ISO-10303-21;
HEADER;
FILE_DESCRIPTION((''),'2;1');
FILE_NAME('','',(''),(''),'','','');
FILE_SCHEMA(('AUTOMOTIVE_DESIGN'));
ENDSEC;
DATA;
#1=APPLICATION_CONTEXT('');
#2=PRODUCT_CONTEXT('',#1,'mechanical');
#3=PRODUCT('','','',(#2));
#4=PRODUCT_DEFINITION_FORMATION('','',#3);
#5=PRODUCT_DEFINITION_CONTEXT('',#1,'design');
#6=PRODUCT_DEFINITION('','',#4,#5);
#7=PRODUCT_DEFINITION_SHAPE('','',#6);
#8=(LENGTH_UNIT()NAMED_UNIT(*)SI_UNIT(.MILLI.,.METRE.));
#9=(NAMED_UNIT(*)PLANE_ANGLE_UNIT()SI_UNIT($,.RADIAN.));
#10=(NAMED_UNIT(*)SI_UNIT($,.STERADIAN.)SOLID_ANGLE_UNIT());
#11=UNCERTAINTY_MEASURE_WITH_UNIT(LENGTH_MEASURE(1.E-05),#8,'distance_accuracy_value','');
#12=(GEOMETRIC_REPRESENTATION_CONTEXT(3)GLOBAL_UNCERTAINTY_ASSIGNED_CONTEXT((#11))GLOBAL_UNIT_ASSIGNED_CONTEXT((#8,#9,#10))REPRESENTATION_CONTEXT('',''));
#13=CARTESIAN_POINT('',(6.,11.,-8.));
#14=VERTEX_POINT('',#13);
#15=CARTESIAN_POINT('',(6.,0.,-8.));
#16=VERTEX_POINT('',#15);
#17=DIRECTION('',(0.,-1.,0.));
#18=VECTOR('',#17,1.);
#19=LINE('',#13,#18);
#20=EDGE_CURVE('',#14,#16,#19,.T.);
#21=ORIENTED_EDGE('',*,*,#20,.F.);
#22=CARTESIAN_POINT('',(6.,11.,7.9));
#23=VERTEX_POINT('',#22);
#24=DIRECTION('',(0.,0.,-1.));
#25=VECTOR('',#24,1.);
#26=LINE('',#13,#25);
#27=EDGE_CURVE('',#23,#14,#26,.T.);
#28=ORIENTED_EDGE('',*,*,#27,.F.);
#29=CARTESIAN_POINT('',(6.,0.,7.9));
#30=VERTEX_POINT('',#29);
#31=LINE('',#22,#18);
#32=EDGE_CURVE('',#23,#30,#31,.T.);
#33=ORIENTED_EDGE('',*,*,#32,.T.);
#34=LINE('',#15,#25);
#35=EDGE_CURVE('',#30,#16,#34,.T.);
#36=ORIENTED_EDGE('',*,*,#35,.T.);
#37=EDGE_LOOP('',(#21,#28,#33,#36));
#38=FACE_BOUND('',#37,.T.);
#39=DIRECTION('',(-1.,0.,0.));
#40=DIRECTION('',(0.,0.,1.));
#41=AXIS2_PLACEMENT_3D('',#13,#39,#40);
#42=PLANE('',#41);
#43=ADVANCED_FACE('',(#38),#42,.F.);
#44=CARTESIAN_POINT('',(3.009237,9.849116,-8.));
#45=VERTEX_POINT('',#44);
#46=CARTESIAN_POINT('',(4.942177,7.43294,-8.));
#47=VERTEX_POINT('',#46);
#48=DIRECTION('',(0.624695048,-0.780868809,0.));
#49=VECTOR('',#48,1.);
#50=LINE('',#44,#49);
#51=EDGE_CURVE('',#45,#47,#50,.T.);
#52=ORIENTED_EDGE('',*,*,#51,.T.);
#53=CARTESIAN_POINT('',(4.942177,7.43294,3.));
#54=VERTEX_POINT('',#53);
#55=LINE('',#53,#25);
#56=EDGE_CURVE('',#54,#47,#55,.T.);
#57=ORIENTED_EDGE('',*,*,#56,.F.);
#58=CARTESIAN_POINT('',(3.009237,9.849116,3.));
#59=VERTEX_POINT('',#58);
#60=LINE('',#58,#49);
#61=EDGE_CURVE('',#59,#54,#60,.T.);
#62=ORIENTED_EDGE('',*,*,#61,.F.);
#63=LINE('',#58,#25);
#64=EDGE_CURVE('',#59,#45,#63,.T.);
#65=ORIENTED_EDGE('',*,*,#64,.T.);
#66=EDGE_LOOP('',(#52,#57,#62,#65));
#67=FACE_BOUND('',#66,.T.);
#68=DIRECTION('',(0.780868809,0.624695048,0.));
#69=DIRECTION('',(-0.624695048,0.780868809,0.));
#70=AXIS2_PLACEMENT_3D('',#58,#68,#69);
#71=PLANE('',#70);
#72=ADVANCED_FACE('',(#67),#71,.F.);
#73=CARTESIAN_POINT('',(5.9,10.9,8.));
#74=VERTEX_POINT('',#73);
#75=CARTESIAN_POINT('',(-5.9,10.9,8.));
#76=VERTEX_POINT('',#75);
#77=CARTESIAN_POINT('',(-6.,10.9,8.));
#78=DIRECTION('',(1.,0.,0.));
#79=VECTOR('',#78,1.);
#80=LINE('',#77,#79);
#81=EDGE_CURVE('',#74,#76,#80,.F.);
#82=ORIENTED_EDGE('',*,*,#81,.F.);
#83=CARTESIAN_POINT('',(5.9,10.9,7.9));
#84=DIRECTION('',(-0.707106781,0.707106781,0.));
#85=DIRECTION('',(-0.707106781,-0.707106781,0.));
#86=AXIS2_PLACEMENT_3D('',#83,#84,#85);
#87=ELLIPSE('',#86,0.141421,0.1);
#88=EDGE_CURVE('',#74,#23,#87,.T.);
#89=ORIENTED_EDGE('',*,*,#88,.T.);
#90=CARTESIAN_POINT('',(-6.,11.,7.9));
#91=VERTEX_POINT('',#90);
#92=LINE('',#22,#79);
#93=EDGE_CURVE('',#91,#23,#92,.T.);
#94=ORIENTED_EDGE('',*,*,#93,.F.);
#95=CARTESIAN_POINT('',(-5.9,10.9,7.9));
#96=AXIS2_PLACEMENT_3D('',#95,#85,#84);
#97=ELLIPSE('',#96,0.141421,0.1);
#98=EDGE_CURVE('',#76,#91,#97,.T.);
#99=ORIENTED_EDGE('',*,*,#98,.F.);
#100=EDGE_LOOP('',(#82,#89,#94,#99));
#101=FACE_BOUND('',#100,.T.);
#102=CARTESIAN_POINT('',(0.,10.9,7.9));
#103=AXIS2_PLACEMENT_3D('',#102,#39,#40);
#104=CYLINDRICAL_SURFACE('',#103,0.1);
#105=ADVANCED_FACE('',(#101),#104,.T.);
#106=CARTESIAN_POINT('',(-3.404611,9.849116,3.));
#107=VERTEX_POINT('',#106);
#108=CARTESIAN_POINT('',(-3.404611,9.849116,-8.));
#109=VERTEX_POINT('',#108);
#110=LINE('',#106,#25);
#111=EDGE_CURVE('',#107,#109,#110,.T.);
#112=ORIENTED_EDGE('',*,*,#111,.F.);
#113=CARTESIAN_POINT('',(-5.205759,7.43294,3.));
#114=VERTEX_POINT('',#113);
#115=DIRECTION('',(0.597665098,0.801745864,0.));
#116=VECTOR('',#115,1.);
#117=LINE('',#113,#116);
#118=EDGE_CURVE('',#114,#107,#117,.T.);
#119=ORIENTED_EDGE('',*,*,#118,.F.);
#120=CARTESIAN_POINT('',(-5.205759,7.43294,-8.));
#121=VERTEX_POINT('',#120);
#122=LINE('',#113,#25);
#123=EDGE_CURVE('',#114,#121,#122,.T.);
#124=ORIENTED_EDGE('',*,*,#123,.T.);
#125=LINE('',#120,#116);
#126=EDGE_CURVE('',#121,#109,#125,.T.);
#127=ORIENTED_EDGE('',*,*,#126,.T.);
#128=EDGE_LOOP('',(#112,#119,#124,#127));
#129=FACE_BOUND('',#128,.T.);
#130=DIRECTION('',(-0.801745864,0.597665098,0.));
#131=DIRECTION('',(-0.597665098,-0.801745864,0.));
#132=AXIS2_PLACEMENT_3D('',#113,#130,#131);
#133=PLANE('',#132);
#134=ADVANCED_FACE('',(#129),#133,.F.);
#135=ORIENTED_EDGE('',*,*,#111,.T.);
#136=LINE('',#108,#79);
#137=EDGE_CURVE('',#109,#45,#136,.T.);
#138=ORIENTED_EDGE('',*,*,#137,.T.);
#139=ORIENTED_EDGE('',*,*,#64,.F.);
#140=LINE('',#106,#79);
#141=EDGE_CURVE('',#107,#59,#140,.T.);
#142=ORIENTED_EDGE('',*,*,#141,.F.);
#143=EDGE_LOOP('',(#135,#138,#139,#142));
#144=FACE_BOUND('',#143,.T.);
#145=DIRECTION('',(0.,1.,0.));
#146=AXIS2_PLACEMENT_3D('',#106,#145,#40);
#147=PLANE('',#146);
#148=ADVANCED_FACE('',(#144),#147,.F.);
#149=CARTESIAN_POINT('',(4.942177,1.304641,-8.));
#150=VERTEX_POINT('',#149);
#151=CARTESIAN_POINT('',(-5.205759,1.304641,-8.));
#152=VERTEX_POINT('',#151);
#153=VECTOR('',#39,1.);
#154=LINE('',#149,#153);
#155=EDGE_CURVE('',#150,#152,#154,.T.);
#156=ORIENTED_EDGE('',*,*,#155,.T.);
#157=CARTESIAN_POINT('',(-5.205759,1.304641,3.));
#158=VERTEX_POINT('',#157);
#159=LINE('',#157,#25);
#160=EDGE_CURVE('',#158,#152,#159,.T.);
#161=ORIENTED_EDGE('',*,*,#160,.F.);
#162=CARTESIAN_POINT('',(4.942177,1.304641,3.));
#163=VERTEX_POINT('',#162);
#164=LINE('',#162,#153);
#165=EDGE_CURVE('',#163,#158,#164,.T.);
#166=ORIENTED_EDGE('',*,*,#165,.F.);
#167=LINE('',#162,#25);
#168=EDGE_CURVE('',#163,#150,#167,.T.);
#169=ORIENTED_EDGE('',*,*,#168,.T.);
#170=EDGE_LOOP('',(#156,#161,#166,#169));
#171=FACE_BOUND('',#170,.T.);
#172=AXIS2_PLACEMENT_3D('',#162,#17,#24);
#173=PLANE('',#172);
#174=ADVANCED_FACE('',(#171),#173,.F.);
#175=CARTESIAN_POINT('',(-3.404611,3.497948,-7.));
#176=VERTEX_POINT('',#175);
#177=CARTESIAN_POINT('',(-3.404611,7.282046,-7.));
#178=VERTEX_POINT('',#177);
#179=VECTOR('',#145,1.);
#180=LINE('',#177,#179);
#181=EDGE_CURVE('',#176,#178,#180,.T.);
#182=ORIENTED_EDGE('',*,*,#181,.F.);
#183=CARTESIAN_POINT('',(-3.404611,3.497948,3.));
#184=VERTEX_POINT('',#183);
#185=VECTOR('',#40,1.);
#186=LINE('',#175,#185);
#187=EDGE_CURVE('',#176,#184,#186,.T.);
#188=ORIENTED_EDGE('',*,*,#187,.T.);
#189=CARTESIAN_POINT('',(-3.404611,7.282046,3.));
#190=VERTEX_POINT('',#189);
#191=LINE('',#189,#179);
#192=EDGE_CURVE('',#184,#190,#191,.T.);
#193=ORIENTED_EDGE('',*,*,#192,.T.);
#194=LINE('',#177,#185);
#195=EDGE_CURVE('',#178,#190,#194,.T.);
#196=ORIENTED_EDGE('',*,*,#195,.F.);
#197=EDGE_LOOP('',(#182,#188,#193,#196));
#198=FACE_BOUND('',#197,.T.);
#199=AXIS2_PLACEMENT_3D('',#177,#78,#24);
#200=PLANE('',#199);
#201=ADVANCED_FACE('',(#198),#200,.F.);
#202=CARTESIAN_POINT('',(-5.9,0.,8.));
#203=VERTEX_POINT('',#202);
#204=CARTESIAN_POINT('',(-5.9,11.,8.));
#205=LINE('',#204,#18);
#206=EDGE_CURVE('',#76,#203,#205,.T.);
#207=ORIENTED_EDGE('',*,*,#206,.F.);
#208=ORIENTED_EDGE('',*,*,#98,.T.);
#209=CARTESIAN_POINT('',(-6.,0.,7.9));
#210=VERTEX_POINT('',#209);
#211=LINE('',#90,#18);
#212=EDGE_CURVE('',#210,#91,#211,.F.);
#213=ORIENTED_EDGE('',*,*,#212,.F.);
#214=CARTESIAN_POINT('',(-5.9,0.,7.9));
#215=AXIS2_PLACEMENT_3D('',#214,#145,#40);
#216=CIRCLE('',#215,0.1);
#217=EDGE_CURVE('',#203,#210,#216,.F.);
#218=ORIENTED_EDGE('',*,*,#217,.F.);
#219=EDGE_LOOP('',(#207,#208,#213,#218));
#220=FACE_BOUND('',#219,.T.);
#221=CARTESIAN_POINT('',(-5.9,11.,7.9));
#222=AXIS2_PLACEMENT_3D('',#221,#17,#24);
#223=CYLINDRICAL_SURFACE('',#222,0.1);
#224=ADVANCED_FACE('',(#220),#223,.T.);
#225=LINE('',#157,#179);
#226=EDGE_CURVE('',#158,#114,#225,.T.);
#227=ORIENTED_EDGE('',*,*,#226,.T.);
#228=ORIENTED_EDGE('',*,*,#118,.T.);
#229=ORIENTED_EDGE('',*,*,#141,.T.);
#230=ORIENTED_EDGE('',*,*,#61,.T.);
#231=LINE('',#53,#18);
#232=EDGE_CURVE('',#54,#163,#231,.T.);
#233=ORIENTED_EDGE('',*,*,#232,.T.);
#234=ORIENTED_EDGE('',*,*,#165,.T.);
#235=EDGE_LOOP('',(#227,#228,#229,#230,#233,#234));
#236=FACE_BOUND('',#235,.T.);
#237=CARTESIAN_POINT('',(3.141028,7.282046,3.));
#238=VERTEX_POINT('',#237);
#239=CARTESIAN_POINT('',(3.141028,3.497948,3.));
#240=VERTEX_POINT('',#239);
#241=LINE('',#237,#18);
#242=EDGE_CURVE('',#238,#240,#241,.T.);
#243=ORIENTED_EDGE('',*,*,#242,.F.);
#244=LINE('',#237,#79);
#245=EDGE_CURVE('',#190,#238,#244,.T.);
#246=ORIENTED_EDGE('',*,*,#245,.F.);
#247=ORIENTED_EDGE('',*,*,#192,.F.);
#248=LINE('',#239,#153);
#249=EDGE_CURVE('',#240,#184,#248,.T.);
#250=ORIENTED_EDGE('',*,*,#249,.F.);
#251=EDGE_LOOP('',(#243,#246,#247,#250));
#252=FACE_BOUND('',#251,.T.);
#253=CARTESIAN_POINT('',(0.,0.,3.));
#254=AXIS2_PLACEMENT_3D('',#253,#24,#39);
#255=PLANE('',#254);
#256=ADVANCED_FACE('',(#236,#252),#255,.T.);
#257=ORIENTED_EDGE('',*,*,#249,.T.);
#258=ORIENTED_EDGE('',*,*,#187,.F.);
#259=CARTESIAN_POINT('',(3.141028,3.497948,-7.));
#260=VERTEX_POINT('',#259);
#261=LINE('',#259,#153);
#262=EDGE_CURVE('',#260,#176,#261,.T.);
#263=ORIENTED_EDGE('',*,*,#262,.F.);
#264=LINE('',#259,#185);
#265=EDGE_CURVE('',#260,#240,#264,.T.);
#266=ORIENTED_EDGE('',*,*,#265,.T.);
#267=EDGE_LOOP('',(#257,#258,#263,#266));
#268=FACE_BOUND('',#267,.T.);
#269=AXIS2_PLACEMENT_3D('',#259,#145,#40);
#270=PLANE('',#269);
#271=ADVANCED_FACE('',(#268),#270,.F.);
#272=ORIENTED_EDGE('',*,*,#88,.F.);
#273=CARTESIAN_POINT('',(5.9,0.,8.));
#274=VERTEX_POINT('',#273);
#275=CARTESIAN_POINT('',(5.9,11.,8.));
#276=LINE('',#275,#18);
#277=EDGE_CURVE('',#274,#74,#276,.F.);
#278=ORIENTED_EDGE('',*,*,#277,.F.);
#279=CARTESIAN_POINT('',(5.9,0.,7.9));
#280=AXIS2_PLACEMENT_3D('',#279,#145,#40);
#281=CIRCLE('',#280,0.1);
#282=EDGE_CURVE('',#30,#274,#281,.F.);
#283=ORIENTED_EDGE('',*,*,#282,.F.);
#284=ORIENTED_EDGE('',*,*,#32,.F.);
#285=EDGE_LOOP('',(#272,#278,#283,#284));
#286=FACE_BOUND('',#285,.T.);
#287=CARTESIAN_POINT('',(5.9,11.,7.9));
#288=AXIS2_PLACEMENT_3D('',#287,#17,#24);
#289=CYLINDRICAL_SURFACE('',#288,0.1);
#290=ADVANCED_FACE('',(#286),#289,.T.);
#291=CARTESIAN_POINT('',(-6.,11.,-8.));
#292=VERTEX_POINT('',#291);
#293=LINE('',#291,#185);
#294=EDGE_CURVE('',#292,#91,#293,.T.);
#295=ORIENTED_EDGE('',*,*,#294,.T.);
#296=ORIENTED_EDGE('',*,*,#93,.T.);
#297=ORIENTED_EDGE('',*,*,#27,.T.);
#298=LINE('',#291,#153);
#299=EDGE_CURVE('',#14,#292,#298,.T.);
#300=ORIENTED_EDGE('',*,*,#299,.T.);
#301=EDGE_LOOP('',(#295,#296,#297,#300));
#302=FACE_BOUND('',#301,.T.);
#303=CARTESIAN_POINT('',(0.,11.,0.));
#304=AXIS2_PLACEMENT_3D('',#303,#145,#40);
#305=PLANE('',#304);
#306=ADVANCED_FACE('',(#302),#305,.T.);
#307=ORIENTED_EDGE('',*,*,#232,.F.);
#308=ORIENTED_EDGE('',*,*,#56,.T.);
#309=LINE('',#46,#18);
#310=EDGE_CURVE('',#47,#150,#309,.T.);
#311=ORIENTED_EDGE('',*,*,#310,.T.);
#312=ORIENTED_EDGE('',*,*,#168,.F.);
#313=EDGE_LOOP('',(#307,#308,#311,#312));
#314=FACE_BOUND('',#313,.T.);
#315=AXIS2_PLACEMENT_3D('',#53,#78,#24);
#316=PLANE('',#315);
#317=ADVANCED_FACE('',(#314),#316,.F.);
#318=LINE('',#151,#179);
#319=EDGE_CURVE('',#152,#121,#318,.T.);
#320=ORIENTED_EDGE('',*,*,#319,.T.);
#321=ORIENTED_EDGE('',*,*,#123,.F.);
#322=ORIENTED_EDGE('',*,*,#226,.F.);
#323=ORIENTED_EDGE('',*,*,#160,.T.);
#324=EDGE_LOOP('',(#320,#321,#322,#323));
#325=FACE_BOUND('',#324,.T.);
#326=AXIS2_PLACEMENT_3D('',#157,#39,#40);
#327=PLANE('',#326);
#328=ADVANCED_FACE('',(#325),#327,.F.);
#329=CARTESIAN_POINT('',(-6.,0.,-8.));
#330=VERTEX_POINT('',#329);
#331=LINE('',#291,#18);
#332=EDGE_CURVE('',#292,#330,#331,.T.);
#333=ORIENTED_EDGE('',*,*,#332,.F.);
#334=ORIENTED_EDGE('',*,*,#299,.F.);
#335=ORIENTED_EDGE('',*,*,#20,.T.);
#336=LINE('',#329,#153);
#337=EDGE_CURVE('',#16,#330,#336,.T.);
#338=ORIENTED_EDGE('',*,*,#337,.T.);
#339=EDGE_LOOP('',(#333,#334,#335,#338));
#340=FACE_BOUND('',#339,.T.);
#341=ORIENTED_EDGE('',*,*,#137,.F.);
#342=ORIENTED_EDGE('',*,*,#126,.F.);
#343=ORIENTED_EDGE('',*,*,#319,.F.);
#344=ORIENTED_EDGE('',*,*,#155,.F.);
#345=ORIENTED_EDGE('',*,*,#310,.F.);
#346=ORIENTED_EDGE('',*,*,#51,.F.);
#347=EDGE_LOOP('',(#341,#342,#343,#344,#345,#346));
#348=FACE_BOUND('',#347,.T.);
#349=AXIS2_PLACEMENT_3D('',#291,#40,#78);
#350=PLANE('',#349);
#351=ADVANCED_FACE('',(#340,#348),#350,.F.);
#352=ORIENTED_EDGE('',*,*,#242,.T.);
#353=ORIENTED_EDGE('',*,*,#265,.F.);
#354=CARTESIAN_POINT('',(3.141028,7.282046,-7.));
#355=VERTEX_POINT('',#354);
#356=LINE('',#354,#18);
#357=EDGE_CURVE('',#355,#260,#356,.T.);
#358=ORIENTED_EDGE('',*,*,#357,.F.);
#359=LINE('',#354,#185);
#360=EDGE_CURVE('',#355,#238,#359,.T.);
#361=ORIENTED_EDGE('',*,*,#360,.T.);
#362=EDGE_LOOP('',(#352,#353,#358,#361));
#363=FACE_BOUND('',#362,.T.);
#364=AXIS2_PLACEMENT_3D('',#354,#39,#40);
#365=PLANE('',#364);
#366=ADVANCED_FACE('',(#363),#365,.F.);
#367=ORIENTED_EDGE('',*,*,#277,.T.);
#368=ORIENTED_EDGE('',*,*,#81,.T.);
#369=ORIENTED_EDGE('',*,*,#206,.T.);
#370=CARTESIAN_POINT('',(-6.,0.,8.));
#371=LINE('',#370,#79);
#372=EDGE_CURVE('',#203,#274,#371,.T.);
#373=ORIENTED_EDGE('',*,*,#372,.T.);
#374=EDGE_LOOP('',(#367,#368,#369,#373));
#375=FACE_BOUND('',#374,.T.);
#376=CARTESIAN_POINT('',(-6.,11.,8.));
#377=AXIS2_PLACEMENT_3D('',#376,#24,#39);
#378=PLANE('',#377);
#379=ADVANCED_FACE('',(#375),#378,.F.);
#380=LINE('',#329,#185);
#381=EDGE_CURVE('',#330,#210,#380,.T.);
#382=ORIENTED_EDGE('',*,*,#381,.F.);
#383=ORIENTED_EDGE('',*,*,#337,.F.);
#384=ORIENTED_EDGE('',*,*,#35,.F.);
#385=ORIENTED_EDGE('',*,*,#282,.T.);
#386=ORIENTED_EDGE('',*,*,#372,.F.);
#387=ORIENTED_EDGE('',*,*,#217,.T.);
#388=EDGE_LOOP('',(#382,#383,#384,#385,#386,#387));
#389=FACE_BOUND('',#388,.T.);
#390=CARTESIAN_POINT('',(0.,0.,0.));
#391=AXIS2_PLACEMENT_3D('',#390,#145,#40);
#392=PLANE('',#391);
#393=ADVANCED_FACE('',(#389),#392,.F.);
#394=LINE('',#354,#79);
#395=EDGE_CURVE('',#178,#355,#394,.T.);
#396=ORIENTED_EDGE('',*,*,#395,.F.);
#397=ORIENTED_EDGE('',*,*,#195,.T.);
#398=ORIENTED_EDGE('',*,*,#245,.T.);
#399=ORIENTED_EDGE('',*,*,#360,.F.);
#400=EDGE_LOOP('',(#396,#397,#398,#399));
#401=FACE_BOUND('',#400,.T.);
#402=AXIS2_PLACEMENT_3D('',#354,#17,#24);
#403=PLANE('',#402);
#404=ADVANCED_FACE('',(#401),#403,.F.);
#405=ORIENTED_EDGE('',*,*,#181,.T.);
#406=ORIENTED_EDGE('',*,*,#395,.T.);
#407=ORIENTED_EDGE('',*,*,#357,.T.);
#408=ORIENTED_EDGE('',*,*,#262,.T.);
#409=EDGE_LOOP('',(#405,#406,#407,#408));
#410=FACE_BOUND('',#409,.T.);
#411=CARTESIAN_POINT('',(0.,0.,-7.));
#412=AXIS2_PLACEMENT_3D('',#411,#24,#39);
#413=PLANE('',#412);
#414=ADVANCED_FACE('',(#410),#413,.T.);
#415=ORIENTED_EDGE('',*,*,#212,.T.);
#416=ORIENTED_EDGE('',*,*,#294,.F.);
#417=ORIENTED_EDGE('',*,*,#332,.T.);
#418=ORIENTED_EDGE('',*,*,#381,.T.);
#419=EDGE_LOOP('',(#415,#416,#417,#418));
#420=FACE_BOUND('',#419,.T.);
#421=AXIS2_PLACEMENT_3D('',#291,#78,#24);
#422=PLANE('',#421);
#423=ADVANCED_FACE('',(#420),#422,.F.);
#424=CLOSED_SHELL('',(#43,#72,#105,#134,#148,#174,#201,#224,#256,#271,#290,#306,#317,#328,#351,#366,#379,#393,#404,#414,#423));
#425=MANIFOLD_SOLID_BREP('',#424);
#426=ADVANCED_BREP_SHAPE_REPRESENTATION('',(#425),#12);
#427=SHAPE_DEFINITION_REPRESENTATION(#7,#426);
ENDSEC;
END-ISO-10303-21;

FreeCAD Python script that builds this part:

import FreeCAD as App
import Part
import Sketcher


def edges_at(feature, points):
    """Names of the edges that pass closest to the given points."""
    edges = feature.Shape.Edges
    near = lambda p: min(range(len(edges)), key=lambda i: edges[i].distToShape(Part.Vertex(*p))[0])
    return sorted({f"Edge{near(p) + 1}" for p in points})


def add_polygon(sketch, points):
    """Adds a closed chain of lines whose ends are joined by coincident constraints."""
    first, n = sketch.GeometryCount, len(points)
    for a, b in zip(points, points[1:] + points[:1]):
        sketch.addGeometry(Part.LineSegment(App.Vector(*a, 0), App.Vector(*b, 0)), False)
    for i in range(n):
        sketch.addConstraint(Sketcher.Constraint("Coincident", first + i, 2, first + (i + 1) % n, 1))

doc = App.newDocument("Part")
params = doc.addObject("Spreadsheet::Sheet", "Params")
for row, (alias, value) in enumerate([
    ("sketch1_width", "12 mm"),
    ("sketch1_height", "16 mm"),
    ("pad1_length", "11 mm"),
    ("pocket1_length", "11 mm"),
    ("fillet_radius", "0.1 mm"),
    ("pad2_length", "10 mm"),
], start=1):
    params.set(f"A{row}", alias)
    params.set(f"B{row}", "=" + value)
    params.setAlias(f"B{row}", alias)

body = doc.addObject("PartDesign::Body", "Body")

sketch1 = body.newObject("Sketcher::SketchObject", "Sketch")
sketch1.AttachmentSupport = (doc.getObject("XZ_Plane"), [""])
sketch1.MapMode = "FlatFace"
add_polygon(sketch1, [(-6, -8), (-6, 8), (6, 8), (6, -8)])
sketch1.addConstraint(Sketcher.Constraint("Vertical", 0))
sketch1.addConstraint(Sketcher.Constraint("Horizontal", 1))
sketch1.addConstraint(Sketcher.Constraint("Vertical", 2))
sketch1.addConstraint(Sketcher.Constraint("Horizontal", 3))
sketch1.addConstraint(Sketcher.Constraint("Symmetric", 0, 2, 2, 2, -1, 1))
sketch1.addConstraint(Sketcher.Constraint("DistanceX", 1, 1, 1, 2, 12.0))
sketch1.addConstraint(Sketcher.Constraint("DistanceY", 0, 1, 0, 2, 16.0))
sketch1.setExpression("Constraints[9]", "Params.sketch1_width")
sketch1.setExpression("Constraints[10]", "Params.sketch1_height")
pad1 = body.newObject("PartDesign::Pad", "Pad")
pad1.Profile = sketch1
pad1.setExpression("Length", "Params.pad1_length")
pad1.Reversed = True

sketch2 = body.newObject("Sketcher::SketchObject", "Sketch001")
sketch2.AttachmentSupport = (doc.getObject("XY_Plane"), [""])
sketch2.MapMode = "FlatFace"
sketch2.AttachmentOffset = App.Placement(App.Vector(0, 0, -8), App.Rotation())
add_polygon(sketch2, [(4.942177, 1.304641), (-5.205759, 1.304641), (-5.205759, 7.43294), (-3.404611, 9.849116), (3.009237, 9.849116), (4.942177, 7.43294)])
sketch2.addConstraint(Sketcher.Constraint("Horizontal", 0))
sketch2.addConstraint(Sketcher.Constraint("Vertical", 1))
sketch2.addConstraint(Sketcher.Constraint("Horizontal", 3))
sketch2.addConstraint(Sketcher.Constraint("Vertical", 5))
sketch2.addConstraint(Sketcher.Constraint("Horizontal", 1, 2, 4, 2))
sketch2.addConstraint(Sketcher.Constraint("DistanceY", 1, 1, 1, 2, 6.128299))
sketch2.addConstraint(Sketcher.Constraint("DistanceX", 0, 2, 0, 1, 10.147936))
sketch2.addConstraint(Sketcher.Constraint("DistanceX", 3, 1, 3, 2, 6.413847))
sketch2.addConstraint(Sketcher.Constraint("DistanceX", 0, 2, -1, 1, 5.205759))
sketch2.addConstraint(Sketcher.Constraint("DistanceY", -1, 1, 0, 2, 1.304641))
sketch2.addConstraint(Sketcher.Constraint("DistanceX", 2, 2, -1, 1, 3.404611))
sketch2.addConstraint(Sketcher.Constraint("Distance", 2, 3.013642))
pocket1 = body.newObject("PartDesign::Pocket", "Pocket")
pocket1.Profile = sketch2
pocket1.setExpression("Length", "Params.pocket1_length")
pocket1.Reversed = True
doc.recompute()

fillet = body.newObject("PartDesign::Fillet", "Fillet")
fillet.Base = (pocket1, edges_at(pocket1, [(0, 11, 8), (6, 5.5, 8), (-6, 5.5, 8)]))
fillet.setExpression("Radius", "Params.fillet_radius")

sketch3 = body.newObject("Sketcher::SketchObject", "Sketch002")
sketch3.AttachmentSupport = (doc.getObject("XY_Plane"), [""])
sketch3.MapMode = "FlatFace"
sketch3.AttachmentOffset = App.Placement(App.Vector(0, 0, 3), App.Rotation())
add_polygon(sketch3, [(3.141028, 7.282046), (3.141028, 3.497948), (-3.404611, 3.497948), (-3.404611, 7.282046)])
sketch3.addConstraint(Sketcher.Constraint("Vertical", 0))
sketch3.addConstraint(Sketcher.Constraint("Horizontal", 1))
sketch3.addConstraint(Sketcher.Constraint("Vertical", 2))
sketch3.addConstraint(Sketcher.Constraint("Horizontal", 3))
sketch3.addConstraint(Sketcher.Constraint("DistanceY", 0, 2, 0, 1, 3.784098))
sketch3.addConstraint(Sketcher.Constraint("DistanceX", 1, 2, 1, 1, 6.545639))
sketch3.addConstraint(Sketcher.Constraint("DistanceX", 1, 2, -1, 1, 3.404611))
sketch3.addConstraint(Sketcher.Constraint("DistanceY", -1, 1, 0, 2, 3.497948))
pad2 = body.newObject("PartDesign::Pad", "Pad001")
pad2.Profile = sketch3
pad2.setExpression("Length", "Params.pad2_length")
pad2.Reversed = True

doc.recompute()
